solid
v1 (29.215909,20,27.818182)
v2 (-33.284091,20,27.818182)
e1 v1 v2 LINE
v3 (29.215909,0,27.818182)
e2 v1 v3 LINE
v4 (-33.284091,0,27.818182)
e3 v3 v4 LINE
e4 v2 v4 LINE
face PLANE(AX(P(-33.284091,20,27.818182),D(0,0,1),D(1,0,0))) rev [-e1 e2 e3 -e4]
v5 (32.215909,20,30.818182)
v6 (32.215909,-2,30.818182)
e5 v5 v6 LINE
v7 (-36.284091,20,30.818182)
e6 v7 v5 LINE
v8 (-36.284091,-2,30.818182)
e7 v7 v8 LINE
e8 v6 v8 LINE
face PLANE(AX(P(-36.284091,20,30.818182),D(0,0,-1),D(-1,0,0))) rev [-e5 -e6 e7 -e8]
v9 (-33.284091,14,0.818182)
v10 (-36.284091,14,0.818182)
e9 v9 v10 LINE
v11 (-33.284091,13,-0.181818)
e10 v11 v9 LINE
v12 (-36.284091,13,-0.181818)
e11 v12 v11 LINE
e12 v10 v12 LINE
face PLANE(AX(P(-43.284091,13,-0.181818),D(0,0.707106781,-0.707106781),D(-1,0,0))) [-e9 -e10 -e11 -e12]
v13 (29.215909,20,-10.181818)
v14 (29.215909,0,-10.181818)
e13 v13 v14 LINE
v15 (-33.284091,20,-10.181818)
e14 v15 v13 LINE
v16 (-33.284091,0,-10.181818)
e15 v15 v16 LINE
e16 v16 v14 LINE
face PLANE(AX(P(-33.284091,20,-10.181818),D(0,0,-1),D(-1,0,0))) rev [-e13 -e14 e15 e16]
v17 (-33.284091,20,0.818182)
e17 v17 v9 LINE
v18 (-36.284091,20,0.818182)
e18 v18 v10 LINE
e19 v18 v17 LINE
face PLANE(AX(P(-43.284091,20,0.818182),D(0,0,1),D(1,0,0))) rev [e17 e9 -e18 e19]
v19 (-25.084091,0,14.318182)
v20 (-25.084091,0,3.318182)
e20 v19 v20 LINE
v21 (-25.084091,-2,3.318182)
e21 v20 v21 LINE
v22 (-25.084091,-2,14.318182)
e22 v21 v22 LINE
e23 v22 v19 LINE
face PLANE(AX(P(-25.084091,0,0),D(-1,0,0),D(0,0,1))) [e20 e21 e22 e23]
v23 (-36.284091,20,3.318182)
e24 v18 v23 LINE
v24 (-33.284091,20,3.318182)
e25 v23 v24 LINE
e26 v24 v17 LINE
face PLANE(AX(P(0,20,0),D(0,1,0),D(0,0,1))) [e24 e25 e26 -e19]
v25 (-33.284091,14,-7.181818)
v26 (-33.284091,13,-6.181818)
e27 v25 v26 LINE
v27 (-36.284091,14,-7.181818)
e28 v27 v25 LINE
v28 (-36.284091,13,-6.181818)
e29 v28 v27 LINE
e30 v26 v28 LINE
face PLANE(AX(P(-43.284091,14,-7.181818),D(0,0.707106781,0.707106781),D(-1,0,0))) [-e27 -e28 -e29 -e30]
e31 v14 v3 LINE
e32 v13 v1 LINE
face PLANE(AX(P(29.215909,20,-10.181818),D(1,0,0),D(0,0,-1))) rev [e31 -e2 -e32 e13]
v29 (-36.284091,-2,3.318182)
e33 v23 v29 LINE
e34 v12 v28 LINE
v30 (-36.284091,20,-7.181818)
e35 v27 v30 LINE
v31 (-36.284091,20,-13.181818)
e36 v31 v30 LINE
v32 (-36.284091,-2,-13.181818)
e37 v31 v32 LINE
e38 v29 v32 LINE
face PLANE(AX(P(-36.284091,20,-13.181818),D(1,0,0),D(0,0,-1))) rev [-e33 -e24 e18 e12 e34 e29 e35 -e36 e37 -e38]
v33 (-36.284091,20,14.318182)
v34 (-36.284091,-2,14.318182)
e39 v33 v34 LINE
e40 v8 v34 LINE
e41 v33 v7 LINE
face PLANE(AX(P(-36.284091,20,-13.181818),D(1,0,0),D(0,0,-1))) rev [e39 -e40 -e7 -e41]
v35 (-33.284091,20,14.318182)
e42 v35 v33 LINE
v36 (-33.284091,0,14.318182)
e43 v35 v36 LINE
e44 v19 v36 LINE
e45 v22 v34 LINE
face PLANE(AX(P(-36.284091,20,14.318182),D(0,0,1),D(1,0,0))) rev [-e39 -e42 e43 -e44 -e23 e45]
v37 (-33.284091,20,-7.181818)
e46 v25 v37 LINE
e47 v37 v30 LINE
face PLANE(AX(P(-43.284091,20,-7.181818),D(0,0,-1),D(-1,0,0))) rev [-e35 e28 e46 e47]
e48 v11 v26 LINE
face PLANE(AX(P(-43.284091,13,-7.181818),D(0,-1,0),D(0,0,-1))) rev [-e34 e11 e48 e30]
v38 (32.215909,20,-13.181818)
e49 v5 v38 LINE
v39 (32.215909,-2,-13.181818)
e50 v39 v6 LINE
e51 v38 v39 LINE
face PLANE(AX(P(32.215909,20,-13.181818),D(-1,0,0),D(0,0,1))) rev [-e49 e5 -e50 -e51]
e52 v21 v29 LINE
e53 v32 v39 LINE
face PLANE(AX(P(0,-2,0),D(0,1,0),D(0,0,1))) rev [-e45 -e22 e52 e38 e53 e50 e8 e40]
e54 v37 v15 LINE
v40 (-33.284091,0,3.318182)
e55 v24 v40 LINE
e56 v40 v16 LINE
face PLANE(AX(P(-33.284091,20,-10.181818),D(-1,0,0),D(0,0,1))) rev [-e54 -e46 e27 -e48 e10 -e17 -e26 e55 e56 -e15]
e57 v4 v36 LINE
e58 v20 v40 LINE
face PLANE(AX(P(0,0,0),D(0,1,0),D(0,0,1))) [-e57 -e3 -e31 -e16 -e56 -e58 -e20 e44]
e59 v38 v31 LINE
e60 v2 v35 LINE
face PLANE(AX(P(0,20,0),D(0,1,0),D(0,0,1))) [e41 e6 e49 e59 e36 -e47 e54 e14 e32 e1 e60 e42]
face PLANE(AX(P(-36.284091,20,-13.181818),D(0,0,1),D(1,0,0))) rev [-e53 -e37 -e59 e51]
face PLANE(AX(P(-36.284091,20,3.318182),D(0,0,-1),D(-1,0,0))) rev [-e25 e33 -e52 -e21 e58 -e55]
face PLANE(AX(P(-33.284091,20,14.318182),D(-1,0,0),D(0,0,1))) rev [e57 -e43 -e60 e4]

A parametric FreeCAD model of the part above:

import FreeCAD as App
import Part
import Sketcher
from FreeCAD import Vector
Q = App.Units.Quantity


def edges_at(feature, points):
    """Names of the edges that pass closest to the given points."""
    edges = feature.Shape.Edges
    near = lambda p: min(range(len(edges)), key=lambda i: edges[i].distToShape(Part.Vertex(*p))[0])
    return sorted({f"Edge{near(p) + 1}" for p in points})


def add_polygon(sketch, points):
    """Adds a closed chain of lines whose ends are joined by coincident constraints."""
    first, n = sketch.GeometryCount, len(points)
    for a, b in zip(points, points[1:] + points[:1]):
        sketch.addGeometry(Part.LineSegment(App.Vector(*a, 0), App.Vector(*b, 0)), False)
    for i in range(n):
        sketch.addConstraint(Sketcher.Constraint("Coincident", first + i, 2, first + (i + 1) % n, 1))

doc = App.newDocument("Part")
params = doc.addObject("Spreadsheet::Sheet", "Params")
for row, (alias, value) in enumerate([
    ("sketch1_width", "3 mm"),
    ("sketch1_height", "44 mm"),
    ("sketch1_height2", "38 mm"),
    ("sketch1_width2", "68.5 mm"),
    ("sketch1_width3", "62.5 mm"),
    ("pad1_length", "20 mm"),
    ("sketch2_height", "44 mm"),
    ("sketch2_width", "68.5 mm"),
    ("pad2_length", "2 mm"),
    ("sketch3_width", "2 mm"),
    ("sketch3_height", "11 mm"),
    ("pocket1_length", "11.2 mm"),
    ("sketch4_width", "7 mm"),
    ("sketch4_height", "8 mm"),
    ("pocket2_length", "10 mm"),
    ("chamfer_size", "1 mm"),
], start=1):
    params.set(f"A{row}", alias)
    params.set(f"B{row}", "=" + value)
    params.setAlias(f"B{row}", alias)

body = doc.addObject("PartDesign::Body", "Body")

# Sketch on XZ plane
sketch1 = doc.addObject("Sketcher::SketchObject", "Sketch")
body.addObject(sketch1)
sketch1.AttachmentSupport = (doc.XZ_Plane, [""])
sketch1.MapMode = "FlatFace"
add_polygon(sketch1, [(-33.284091, 27.818182), (-33.284091, 14.318182), (-36.284091, 14.318182), (-36.284091, 30.818182), (32.215909, 30.818182), (32.215909, -13.181818), (-36.284091, -13.181818), (-36.284091, 3.318182), (-33.284091, 3.318182), (-33.284091, -10.181818), (29.215909, -10.181818), (29.215909, 27.818182)])  # lines 0-11
sketch1.addConstraint(Sketcher.Constraint("Vertical", 0))
sketch1.addConstraint(Sketcher.Constraint("Horizontal", 1))
sketch1.addConstraint(Sketcher.Constraint("Vertical", 2))
sketch1.addConstraint(Sketcher.Constraint("Horizontal", 3))
sketch1.addConstraint(Sketcher.Constraint("Vertical", 4))
sketch1.addConstraint(Sketcher.Constraint("Horizontal", 5))
sketch1.addConstraint(Sketcher.Constraint("Vertical", 6))
sketch1.addConstraint(Sketcher.Constraint("Horizontal", 7))
sketch1.addConstraint(Sketcher.Constraint("Vertical", 8))
sketch1.addConstraint(Sketcher.Constraint("Horizontal", 9))
sketch1.addConstraint(Sketcher.Constraint("Vertical", 10))
sketch1.addConstraint(Sketcher.Constraint("Horizontal", 11))
sketch1.addConstraint(Sketcher.Constraint("Vertical", 2, 2, 5, 2))
sketch1.addConstraint(Sketcher.Constraint("Vertical", 0, 2, 7, 2))
sketch1.addConstraint(Sketcher.Constraint("Equal", 2, 6))
sketch1.addConstraint(Sketcher.Constraint("Equal", 0, 8))
sketch1.addConstraint(Sketcher.Constraint("DistanceX", 1, 2, 1, 1, Q("3 mm")))
sketch1.addConstraint(Sketcher.Constraint("DistanceY", 4, 2, 4, 1, Q("44 mm")))
sketch1.addConstraint(Sketcher.Constraint("DistanceY", 10, 1, 10, 2, Q("38 mm")))
sketch1.addConstraint(Sketcher.Constraint("DistanceX", 3, 1, 3, 2, Q("68.5 mm")))
sketch1.addConstraint(Sketcher.Constraint("DistanceX", 9, 1, 9, 2, Q("62.5 mm")))
sketch1.addConstraint(Sketcher.Constraint("DistanceY", 0, 2, 0, 1, Q("13.5 mm")))
sketch1.addConstraint(Sketcher.Constraint("DistanceX", 0, 2, -1, 1, Q("33.284091 mm")))
sketch1.addConstraint(Sketcher.Constraint("DistanceY", -1, 1, 0, 2, Q("14.318182 mm")))
sketch1.setExpression("Constraints[28]", "Params.sketch1_width")
sketch1.setExpression("Constraints[29]", "Params.sketch1_height")
sketch1.setExpression("Constraints[30]", "Params.sketch1_height2")
sketch1.setExpression("Constraints[31]", "Params.sketch1_width2")
sketch1.setExpression("Constraints[32]", "Params.sketch1_width3")
pad1 = doc.addObject("PartDesign::Pad", "Pad")
body.addObject(pad1)
pad1.Profile = sketch1
pad1.setExpression("Length", "Params.pad1_length")
pad1.Reversed = True

# Sketch on XZ plane
sketch2 = doc.addObject("Sketcher::SketchObject", "Sketch001")
body.addObject(sketch2)
sketch2.AttachmentSupport = (doc.XZ_Plane, [""])
sketch2.MapMode = "FlatFace"
add_polygon(sketch2, [(-36.284091, 30.818182), (-36.284091, -13.181818), (32.215909, -13.181818), (32.215909, 30.818182)])  # lines 0-3
sketch2.addConstraint(Sketcher.Constraint("Vertical", 0))
sketch2.addConstraint(Sketcher.Constraint("Horizontal", 1))
sketch2.addConstraint(Sketcher.Constraint("Vertical", 2))
sketch2.addConstraint(Sketcher.Constraint("Horizontal", 3))
sketch2.addConstraint(Sketcher.Constraint("DistanceY", 0, 2, 0, 1, Q("44 mm")))
sketch2.addConstraint(Sketcher.Constraint("DistanceX", 1, 1, 1, 2, Q("68.5 mm")))
sketch2.addConstraint(Sketcher.Constraint("DistanceX", 0, 2, -1, 1, Q("36.284091 mm")))
sketch2.addConstraint(Sketcher.Constraint("DistanceY", 0, 2, -1, 1, Q("13.181818 mm")))
sketch2.setExpression("Constraints[8]", "Params.sketch2_height")
sketch2.setExpression("Constraints[9]", "Params.sketch2_width")
pad2 = doc.addObject("PartDesign::Pad", "Pad001")
body.addObject(pad2)
pad2.Profile = sketch2
pad2.setExpression("Length", "Params.pad2_length")

# Sketch on YZ plane
sketch3 = doc.addObject("Sketcher::SketchObject", "Sketch002")
body.addObject(sketch3)
sketch3.AttachmentSupport = (doc.YZ_Plane, [""])
sketch3.MapMode = "FlatFace"
sketch3.AttachmentOffset = App.Placement(Vector(0, 0, -36.284091), App.Rotation())
add_polygon(sketch3, [(0, 3.318182), (-2, 3.318182), (-2, 14.318182), (0, 14.318182)])  # lines 0-3
sketch3.addConstraint(Sketcher.Constraint("Horizontal", 0))
sketch3.addConstraint(Sketcher.Constraint("Vertical", 1))
sketch3.addConstraint(Sketcher.Constraint("Horizontal", 2))
sketch3.addConstraint(Sketcher.Constraint("Vertical", 3))
sketch3.addConstraint(Sketcher.Constraint("PointOnObject", 2, 2, -2))
sketch3.addConstraint(Sketcher.Constraint("DistanceX", 0, 2, 0, 1, Q("2 mm")))
sketch3.addConstraint(Sketcher.Constraint("DistanceY", 1, 1, 1, 2, Q("11 mm")))
sketch3.addConstraint(Sketcher.Constraint("DistanceY", -1, 1, 0, 2, Q("3.318182 mm")))
sketch3.setExpression("Constraints[9]", "Params.sketch3_width")
sketch3.setExpression("Constraints[10]", "Params.sketch3_height")
pocket1 = doc.addObject("PartDesign::Pocket", "Pocket")
body.addObject(pocket1)
pocket1.Profile = sketch3
pocket1.setExpression("Length", "Params.pocket1_length")
pocket1.Reversed = True

# Sketch on YZ plane
sketch4 = doc.addObject("Sketcher::SketchObject", "Sketch003")
body.addObject(sketch4)
sketch4.AttachmentSupport = (doc.YZ_Plane, [""])
sketch4.MapMode = "FlatFace"
sketch4.AttachmentOffset = App.Placement(Vector(0, 0, -33.284091), App.Rotation())
add_polygon(sketch4, [(20, 0.818182), (13, 0.818182), (13, -7.181818), (20, -7.181818)])  # lines 0-3
sketch4.addConstraint(Sketcher.Constraint("Horizontal", 0))
sketch4.addConstraint(Sketcher.Constraint("Vertical", 1))
sketch4.addConstraint(Sketcher.Constraint("Horizontal", 2))
sketch4.addConstraint(Sketcher.Constraint("Vertical", 3))
sketch4.addConstraint(Sketcher.Constraint("DistanceX", 0, 2, 0, 1, Q("7 mm")))
sketch4.addConstraint(Sketcher.Constraint("DistanceY", 1, 2, 1, 1, Q("8 mm")))
sketch4.addConstraint(Sketcher.Constraint("DistanceX", -1, 1, 0, 2, Q("13 mm")))
sketch4.addConstraint(Sketcher.Constraint("DistanceY", -1, 1, 0, 2, Q("0.818182 mm")))
sketch4.setExpression("Constraints[8]", "Params.sketch4_width")
sketch4.setExpression("Constraints[9]", "Params.sketch4_height")
pocket2 = doc.addObject("PartDesign::Pocket", "Pocket001")
body.addObject(pocket2)
pocket2.Profile = sketch4
pocket2.setExpression("Length", "Params.pocket2_length")
doc.recompute()

chamfer = doc.addObject("PartDesign::Chamfer", "Chamfer")
body.addObject(chamfer)
chamfer.Base = (pocket2, edges_at(pocket2, [(-34.784, 13, -7.182), (-34.784, 13, 0.818)]))
chamfer.setExpression("Size", "Params.chamfer_size")

doc.recompute()
